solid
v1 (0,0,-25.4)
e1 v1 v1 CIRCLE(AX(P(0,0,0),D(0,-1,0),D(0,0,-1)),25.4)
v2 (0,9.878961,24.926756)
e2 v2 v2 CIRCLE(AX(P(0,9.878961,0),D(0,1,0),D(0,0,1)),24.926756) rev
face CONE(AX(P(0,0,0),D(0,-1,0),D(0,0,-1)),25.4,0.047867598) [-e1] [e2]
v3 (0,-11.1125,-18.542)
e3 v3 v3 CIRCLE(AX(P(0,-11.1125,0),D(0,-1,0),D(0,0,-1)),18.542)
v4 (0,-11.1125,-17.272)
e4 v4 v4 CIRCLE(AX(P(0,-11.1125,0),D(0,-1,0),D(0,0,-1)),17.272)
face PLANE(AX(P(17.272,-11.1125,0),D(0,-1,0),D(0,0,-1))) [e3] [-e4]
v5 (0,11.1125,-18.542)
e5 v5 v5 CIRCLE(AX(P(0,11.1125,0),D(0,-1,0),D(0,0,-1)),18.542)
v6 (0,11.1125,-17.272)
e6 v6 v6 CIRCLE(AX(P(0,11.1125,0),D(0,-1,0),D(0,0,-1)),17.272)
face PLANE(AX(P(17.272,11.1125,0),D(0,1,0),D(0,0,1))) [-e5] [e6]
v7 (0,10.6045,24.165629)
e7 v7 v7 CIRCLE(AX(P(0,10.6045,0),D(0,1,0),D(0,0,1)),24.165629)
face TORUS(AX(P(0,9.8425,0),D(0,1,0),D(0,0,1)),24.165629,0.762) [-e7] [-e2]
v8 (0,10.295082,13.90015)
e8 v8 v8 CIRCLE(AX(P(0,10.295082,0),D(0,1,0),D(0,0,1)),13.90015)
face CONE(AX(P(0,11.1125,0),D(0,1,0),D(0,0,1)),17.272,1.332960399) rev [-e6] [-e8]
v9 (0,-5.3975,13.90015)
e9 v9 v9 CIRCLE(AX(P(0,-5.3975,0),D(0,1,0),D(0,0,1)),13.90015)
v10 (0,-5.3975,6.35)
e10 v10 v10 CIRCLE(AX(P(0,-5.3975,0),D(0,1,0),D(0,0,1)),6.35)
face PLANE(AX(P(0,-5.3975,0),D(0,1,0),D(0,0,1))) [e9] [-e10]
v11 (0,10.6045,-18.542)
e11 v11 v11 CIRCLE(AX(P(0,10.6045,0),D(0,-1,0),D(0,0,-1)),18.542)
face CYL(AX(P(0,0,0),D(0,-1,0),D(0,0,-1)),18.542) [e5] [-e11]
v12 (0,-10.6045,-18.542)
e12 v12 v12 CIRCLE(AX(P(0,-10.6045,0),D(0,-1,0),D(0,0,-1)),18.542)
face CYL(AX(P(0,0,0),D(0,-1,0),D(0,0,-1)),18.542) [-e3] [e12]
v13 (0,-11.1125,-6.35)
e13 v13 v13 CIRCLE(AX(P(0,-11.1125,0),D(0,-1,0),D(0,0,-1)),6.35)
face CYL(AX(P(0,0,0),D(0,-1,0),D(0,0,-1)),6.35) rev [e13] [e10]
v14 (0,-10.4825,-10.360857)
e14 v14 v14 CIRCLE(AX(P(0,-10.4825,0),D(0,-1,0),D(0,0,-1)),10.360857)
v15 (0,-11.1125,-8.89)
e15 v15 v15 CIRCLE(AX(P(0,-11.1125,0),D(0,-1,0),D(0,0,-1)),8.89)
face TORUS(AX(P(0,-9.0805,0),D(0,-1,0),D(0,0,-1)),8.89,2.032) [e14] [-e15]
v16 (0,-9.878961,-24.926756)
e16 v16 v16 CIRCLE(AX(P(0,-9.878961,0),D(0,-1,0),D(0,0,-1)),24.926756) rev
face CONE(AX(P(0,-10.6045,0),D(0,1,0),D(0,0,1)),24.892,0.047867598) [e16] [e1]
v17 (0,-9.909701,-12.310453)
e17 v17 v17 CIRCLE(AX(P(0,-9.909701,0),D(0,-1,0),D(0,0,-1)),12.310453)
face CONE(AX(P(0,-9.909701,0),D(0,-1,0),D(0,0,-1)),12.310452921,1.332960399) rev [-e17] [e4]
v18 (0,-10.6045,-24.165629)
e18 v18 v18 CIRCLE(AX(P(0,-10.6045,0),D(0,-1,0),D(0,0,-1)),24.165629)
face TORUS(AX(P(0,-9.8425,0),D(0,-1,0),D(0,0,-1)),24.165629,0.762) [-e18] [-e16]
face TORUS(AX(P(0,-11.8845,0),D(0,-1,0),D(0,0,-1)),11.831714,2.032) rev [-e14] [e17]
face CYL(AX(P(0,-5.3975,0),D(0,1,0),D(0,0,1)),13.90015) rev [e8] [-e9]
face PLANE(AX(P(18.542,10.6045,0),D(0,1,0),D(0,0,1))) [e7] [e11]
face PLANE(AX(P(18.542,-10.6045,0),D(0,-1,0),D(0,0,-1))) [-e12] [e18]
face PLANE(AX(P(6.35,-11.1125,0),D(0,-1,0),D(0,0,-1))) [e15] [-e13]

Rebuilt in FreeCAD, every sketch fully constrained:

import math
import FreeCAD as App
import Part
import Sketcher
from FreeCAD import Vector
Q = App.Units.Quantity


def edges_at(feature, points):
    """Names of the edges that pass closest to the given points."""
    edges = feature.Shape.Edges
    near = lambda p: min(range(len(edges)), key=lambda i: edges[i].distToShape(Part.Vertex(*p))[0])
    return sorted({f"Edge{near(p) + 1}" for p in points})

doc = App.newDocument("Part")
body = doc.addObject("PartDesign::Body", "Body")

# Sketch on XY plane
sketch1 = body.newObject("Sketcher::SketchObject", "Sketch")
sketch1.AttachmentSupport = (doc.getObject("XY_Plane"), [""])
sketch1.MapMode = "FlatFace"
sketch1.addGeometry([
    Part.LineSegment(Vector(6.3, 11.1, 0), Vector(6.3, -11.1, 0)),  # 0
    Part.LineSegment(Vector(6.3, -11.1, 0), Vector(8.9, -11.1, 0)),  # 1
    Part.ArcOfCircle(Part.Circle(Vector(8.9, -9.1, 0), Vector(0, 0, 1), 2), math.radians(-90), math.radians(-44)),  # 2
    Part.ArcOfCircle(Part.Circle(Vector(11.8, -11.9, 0), Vector(0, 0, 1), 2), math.radians(76), math.radians(136)),  # 3
    Part.LineSegment(Vector(12.3, -9.9, 0), Vector(17.3, -11.1, 0)),  # 4
    Part.LineSegment(Vector(17.3, -11.1, 0), Vector(18.5, -11.1, 0)),  # 5
    Part.LineSegment(Vector(18.5, -11.1, 0), Vector(18.5, -10.6, 0)),  # 6
    Part.LineSegment(Vector(18.5, -10.6, 0), Vector(24.9, -10.6, 0)),  # 7
    Part.LineSegment(Vector(24.9, -10.6, 0), Vector(25.4, 0, 0)),  # 8
    Part.LineSegment(Vector(25.4, 0, 0), Vector(24.9, 10.6, 0)),  # 9
    Part.LineSegment(Vector(24.9, 10.6, 0), Vector(18.5, 10.6, 0)),  # 10
    Part.LineSegment(Vector(18.5, 10.6, 0), Vector(18.5, 11.1, 0)),  # 11
    Part.LineSegment(Vector(18.5, 11.1, 0), Vector(17.3, 11.1, 0)),  # 12
    Part.LineSegment(Vector(17.3, 11.1, 0), Vector(12.3, 9.9, 0)),  # 13
    Part.ArcOfCircle(Part.Circle(Vector(11.8, 11.9, 0), Vector(0, 0, 1), 2), math.radians(-136), math.radians(-76)),  # 14
    Part.ArcOfCircle(Part.Circle(Vector(8.9, 9.1, 0), Vector(0, 0, 1), 2), math.radians(44), math.radians(90)),  # 15
    Part.LineSegment(Vector(8.9, 11.1, 0), Vector(6.3, 11.1, 0)),  # 16
], False)
sketch1.addConstraint([
    Sketcher.Constraint("Coincident", 0, 2, 1, 1),
    Sketcher.Constraint("Tangent", 1, 2, 2, 1),
    Sketcher.Constraint("Tangent", 2, 2, 3, 2),
    Sketcher.Constraint("Tangent", 3, 1, 4, 1),
    Sketcher.Constraint("Coincident", 4, 2, 5, 1),
    Sketcher.Constraint("Coincident", 5, 2, 6, 1),
    Sketcher.Constraint("Coincident", 6, 2, 7, 1),
    Sketcher.Constraint("Coincident", 7, 2, 8, 1),
    Sketcher.Constraint("Coincident", 8, 2, 9, 1),
    Sketcher.Constraint("Coincident", 9, 2, 10, 1),
    Sketcher.Constraint("Coincident", 10, 2, 11, 1),
    Sketcher.Constraint("Coincident", 11, 2, 12, 1),
    Sketcher.Constraint("Coincident", 12, 2, 13, 1),
    Sketcher.Constraint("Tangent", 13, 2, 14, 2),
    Sketcher.Constraint("Tangent", 14, 1, 15, 1),
    Sketcher.Constraint("Tangent", 15, 2, 16, 1),
    Sketcher.Constraint("Coincident", 16, 2, 0, 1),
    Sketcher.Constraint("Vertical", 0),
    Sketcher.Constraint("Horizontal", 1),
    Sketcher.Constraint("Horizontal", 5),
    Sketcher.Constraint("Vertical", 6),
    Sketcher.Constraint("Horizontal", 7),
    Sketcher.Constraint("Horizontal", 10),
    Sketcher.Constraint("Vertical", 11),
    Sketcher.Constraint("Horizontal", 12),
    Sketcher.Constraint("Horizontal", 16),
    Sketcher.Constraint("Equal", 2, 3),
    Sketcher.Constraint("Equal", 3, 14),
    Sketcher.Constraint("Equal", 14, 15),
    Sketcher.Constraint("Symmetric", 3, 3, 14, 3, -1),
    Sketcher.Constraint("Symmetric", 7, 2, 9, 2, -1),
    Sketcher.Constraint("Symmetric", 5, 2, 11, 2, -1),
    Sketcher.Constraint("PointOnObject", 8, 2, -1),
    Sketcher.Constraint("Horizontal", 1, 2, 4, 2),
    Sketcher.Constraint("Horizontal", 12, 2, 15, 2),
    Sketcher.Constraint("Vertical", 4, 2, 12, 2),
    Sketcher.Constraint("Radius", 2, Q("0.08 in")),
    Sketcher.Constraint("DistanceX", 1, 1, 1, 2, Q("0.1 in")),
    Sketcher.Constraint("DistanceX", -1, 1, 8, 2, Q("1 in")),
    Sketcher.Constraint("DistanceX", 5, 1, 5, 2, Q("0.05 in")),
    Sketcher.Constraint("DistanceX", 7, 1, 7, 2, Q("0.25 in")),
    Sketcher.Constraint("DistanceY", 6, 1, 6, 2, Q("0.02 in")),
    Sketcher.Constraint("DistanceY", 0, 2, 0, 1, Q("0.875 in")),
    Sketcher.Constraint("DistanceX", -1, 1, 2, 3, Q("0.35 in")),
    Sketcher.Constraint("DistanceX", -1, 1, 4, 2, Q("0.68 in")),
    Sketcher.Constraint("DistanceY", 3, 3, -1, 1, Q("11.8845 mm")),
])
revolution = body.newObject("PartDesign::Revolution", "Revolution")
revolution.Profile = sketch1
revolution.ReferenceAxis = (sketch1, ["V_Axis"])
revolution.Angle = 360
doc.recompute()

fillet = body.newObject("PartDesign::Fillet", "Fillet")
fillet.Base = (revolution, edges_at(revolution, [(0, -10.604, 24.892), (0, 10.604, 24.892)]))
fillet.Radius = Q("0.03 in")

# Sketch on XZ plane
sketch2 = body.newObject("Sketcher::SketchObject", "Sketch001")
sketch2.AttachmentSupport = (doc.getObject("XZ_Plane"), [""])
sketch2.MapMode = "FlatFace"
sketch2.AttachmentOffset = App.Placement(Vector(0, 0, -0.4375 * 25.4), App.Rotation())
sketch2.addGeometry(Part.Circle(Vector(0, 0, 0), Vector(0, 0, 1), 14), False)
sketch2.addConstraint([
    Sketcher.Constraint("Coincident", 0, 3, -1, 1),
    Sketcher.Constraint("Diameter", 0, Q("1.0945 in")),
])
pocket1 = body.newObject("PartDesign::Pocket", "Pocket")
pocket1.Profile = sketch2
pocket1.Length = Q("0.65 in")
pocket1.Reversed = True

doc.recompute()
